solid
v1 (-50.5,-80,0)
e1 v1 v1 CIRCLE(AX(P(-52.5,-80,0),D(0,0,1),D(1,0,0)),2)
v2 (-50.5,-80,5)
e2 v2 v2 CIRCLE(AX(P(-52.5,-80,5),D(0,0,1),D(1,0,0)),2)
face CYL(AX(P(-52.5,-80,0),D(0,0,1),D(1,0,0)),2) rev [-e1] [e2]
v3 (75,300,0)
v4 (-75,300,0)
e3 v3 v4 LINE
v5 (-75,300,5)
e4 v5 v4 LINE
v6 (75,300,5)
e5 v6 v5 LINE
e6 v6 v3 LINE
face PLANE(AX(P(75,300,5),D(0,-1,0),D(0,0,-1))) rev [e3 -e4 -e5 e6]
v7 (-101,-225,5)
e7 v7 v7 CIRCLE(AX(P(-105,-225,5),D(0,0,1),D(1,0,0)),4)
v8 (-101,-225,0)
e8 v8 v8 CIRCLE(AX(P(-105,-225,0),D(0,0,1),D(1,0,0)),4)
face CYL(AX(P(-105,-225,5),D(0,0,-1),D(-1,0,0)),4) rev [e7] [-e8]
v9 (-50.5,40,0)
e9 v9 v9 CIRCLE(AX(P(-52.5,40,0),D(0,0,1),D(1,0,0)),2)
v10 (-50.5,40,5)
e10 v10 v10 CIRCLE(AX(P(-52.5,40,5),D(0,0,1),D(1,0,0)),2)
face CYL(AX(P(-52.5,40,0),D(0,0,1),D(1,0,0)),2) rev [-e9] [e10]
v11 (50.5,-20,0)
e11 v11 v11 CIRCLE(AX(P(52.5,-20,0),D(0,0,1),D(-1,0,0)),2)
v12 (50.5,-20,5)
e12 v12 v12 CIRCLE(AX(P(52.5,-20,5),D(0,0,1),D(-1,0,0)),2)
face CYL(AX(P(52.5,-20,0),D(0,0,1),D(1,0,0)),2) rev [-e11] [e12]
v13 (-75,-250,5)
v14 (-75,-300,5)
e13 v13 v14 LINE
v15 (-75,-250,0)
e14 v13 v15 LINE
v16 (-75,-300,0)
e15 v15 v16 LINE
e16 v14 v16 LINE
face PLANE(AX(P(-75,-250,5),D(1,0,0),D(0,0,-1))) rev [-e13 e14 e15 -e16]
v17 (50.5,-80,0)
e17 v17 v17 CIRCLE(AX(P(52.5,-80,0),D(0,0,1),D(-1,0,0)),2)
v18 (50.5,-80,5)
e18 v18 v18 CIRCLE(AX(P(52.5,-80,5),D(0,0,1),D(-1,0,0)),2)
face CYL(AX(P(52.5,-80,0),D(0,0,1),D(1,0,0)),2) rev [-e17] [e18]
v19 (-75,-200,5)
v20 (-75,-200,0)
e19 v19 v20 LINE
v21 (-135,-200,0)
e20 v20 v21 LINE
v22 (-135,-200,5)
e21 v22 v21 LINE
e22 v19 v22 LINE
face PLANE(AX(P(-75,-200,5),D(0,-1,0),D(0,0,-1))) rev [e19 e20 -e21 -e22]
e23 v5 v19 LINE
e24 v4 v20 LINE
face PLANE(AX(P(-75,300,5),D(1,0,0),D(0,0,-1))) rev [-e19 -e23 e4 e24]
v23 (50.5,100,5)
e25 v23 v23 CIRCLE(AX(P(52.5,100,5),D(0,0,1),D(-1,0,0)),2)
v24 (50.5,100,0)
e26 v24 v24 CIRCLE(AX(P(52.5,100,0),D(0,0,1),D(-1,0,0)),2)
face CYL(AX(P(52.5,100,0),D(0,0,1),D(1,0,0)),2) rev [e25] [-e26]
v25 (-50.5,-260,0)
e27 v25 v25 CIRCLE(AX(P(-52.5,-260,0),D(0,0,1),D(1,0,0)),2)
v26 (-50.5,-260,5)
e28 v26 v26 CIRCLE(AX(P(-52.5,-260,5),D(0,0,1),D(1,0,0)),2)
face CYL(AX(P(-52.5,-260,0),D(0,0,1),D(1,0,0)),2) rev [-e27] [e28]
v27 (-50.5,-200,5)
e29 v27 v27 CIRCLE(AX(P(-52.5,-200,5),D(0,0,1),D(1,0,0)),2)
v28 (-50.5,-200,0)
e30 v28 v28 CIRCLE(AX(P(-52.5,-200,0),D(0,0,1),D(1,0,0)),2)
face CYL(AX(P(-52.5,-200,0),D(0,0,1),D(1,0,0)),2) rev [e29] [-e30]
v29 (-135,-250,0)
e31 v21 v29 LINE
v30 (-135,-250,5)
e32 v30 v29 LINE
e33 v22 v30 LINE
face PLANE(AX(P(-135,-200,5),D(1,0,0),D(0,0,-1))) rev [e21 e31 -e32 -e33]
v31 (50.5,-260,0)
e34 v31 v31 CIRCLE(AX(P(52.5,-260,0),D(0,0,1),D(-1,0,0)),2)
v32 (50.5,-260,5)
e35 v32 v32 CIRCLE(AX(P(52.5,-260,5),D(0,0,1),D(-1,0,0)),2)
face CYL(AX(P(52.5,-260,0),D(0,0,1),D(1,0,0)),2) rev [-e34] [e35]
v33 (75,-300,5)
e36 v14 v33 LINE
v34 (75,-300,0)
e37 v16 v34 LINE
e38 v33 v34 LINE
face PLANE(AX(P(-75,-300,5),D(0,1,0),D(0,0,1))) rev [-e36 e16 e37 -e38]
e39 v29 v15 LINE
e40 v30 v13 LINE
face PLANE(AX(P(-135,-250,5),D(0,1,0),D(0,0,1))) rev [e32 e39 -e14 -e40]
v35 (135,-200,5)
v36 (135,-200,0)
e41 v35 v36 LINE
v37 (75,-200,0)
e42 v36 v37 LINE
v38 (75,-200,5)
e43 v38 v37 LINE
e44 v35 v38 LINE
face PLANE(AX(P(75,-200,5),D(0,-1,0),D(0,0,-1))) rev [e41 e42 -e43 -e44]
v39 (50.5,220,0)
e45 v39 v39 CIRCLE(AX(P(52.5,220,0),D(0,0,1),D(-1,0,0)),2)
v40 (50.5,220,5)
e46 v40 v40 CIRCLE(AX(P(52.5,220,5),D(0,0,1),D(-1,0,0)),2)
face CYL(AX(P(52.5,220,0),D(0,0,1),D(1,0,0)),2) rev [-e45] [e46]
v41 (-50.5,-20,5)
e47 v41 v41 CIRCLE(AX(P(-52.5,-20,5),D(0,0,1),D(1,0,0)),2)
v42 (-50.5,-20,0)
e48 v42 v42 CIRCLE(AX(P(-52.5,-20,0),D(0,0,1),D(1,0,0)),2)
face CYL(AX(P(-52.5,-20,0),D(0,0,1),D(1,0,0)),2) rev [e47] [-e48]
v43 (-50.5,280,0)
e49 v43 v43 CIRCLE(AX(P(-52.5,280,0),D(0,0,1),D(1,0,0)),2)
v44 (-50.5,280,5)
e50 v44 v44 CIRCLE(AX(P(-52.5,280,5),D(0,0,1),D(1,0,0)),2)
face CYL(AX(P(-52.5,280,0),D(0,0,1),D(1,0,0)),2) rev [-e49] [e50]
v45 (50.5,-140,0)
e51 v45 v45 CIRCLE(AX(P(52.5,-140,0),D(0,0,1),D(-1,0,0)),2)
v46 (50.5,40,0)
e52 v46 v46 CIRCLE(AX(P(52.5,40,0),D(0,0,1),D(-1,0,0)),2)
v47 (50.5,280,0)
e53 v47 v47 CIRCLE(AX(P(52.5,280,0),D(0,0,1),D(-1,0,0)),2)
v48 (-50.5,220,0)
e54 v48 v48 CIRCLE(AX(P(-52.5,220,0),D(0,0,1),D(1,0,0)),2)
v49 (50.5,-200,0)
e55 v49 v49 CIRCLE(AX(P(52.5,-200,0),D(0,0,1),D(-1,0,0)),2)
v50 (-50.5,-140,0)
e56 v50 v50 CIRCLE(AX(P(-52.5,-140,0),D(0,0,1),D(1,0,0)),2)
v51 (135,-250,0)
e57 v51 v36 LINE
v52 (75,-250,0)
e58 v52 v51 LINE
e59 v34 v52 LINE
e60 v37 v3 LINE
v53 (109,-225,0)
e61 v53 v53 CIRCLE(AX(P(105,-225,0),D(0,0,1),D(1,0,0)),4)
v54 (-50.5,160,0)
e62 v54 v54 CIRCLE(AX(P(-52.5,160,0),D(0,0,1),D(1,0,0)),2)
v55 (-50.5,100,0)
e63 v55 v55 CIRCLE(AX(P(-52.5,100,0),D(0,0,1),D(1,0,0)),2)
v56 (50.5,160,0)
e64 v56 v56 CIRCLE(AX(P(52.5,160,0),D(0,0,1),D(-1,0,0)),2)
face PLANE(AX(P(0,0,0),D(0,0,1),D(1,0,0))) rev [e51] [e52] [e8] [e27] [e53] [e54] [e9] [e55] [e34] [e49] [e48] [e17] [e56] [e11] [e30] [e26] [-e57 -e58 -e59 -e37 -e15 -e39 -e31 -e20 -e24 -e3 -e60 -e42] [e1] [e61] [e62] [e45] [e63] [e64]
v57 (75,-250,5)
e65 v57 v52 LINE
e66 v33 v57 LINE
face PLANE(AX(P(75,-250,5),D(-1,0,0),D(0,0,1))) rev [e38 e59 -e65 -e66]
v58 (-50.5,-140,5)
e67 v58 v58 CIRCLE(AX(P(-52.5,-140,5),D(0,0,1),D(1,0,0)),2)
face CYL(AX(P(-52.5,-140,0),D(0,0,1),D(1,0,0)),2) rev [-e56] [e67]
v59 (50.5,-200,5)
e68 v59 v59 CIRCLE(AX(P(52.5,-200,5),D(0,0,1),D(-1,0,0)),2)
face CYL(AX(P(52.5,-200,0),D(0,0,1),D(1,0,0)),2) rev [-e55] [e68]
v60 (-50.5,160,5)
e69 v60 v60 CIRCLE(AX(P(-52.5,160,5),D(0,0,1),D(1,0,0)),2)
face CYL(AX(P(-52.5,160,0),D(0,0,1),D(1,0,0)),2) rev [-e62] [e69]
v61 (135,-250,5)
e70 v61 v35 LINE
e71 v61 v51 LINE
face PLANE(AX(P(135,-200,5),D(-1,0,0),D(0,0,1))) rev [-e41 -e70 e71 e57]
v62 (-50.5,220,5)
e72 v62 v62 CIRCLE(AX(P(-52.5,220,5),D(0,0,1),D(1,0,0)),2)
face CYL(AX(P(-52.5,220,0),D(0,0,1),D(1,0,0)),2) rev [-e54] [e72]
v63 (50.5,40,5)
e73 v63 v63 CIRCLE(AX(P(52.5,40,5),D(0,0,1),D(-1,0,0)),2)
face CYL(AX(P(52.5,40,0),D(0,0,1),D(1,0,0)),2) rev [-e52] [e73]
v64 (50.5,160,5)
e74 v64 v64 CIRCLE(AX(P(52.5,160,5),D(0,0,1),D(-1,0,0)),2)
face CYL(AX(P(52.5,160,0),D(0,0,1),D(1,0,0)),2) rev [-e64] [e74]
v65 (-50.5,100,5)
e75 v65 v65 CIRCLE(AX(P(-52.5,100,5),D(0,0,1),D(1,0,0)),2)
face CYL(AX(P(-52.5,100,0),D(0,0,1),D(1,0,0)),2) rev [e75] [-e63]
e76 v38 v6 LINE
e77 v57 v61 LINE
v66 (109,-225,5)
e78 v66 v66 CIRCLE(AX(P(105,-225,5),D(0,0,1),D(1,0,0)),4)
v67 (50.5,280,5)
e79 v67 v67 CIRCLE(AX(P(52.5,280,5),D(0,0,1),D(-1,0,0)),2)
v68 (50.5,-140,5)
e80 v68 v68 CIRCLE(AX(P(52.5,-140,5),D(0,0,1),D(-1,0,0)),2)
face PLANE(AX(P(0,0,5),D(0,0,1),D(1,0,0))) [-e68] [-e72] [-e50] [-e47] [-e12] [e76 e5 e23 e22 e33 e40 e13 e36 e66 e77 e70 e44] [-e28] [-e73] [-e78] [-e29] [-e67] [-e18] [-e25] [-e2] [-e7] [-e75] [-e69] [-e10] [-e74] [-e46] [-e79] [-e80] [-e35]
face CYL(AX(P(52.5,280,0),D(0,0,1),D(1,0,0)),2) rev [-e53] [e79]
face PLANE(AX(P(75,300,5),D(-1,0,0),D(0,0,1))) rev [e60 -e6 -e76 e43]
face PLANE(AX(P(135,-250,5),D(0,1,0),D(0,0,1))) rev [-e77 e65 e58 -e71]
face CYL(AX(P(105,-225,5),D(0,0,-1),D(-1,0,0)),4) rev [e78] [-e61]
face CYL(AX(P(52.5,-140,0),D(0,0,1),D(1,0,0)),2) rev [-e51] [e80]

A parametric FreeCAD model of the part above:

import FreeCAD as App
import Part
import Sketcher
from FreeCAD import Vector
Q = App.Units.Quantity

doc = App.newDocument("Part")
body = doc.addObject("PartDesign::Body", "Body")

sketch1 = body.newObject("Sketcher::SketchObject", "Sketch")
sketch1.AttachmentSupport = (doc.getObject("XY_Plane"), [""])
sketch1.MapMode = "FlatFace"
sketch1.addGeometry([
    Part.LineSegment(Vector(75, -200, 0), Vector(75, 300, 0)),
    Part.LineSegment(Vector(75, 300, 0), Vector(-75, 300, 0)),
    Part.LineSegment(Vector(-75, 300, 0), Vector(-75, -200, 0)),
    Part.LineSegment(Vector(-75, -200, 0), Vector(-135, -200, 0)),
    Part.LineSegment(Vector(-135, -200, 0), Vector(-135, -250, 0)),
    Part.LineSegment(Vector(-135, -250, 0), Vector(-75, -250, 0)),
    Part.LineSegment(Vector(-75, -250, 0), Vector(-75, -300, 0)),
    Part.LineSegment(Vector(-75, -300, 0), Vector(75, -300, 0)),
    Part.LineSegment(Vector(75, -300, 0), Vector(75, -250, 0)),
    Part.LineSegment(Vector(75, -250, 0), Vector(135, -250, 0)),
    Part.LineSegment(Vector(135, -250, 0), Vector(135, -200, 0)),
    Part.LineSegment(Vector(135, -200, 0), Vector(75, -200, 0)),
    Part.Circle(Vector(105, -225, 0), Vector(0, 0, 1), 4),
    Part.Circle(Vector(-105, -225, 0), Vector(0, 0, 1), 4),
], False)
sketch1.addConstraint([
    Sketcher.Constraint("Coincident", 0, 2, 1, 1),
    Sketcher.Constraint("Coincident", 1, 2, 2, 1),
    Sketcher.Constraint("Coincident", 2, 2, 3, 1),
    Sketcher.Constraint("Coincident", 3, 2, 4, 1),
    Sketcher.Constraint("Coincident", 4, 2, 5, 1),
    Sketcher.Constraint("Coincident", 5, 2, 6, 1),
    Sketcher.Constraint("Coincident", 6, 2, 7, 1),
    Sketcher.Constraint("Coincident", 7, 2, 8, 1),
    Sketcher.Constraint("Coincident", 8, 2, 9, 1),
    Sketcher.Constraint("Coincident", 9, 2, 10, 1),
    Sketcher.Constraint("Coincident", 10, 2, 11, 1),
    Sketcher.Constraint("Coincident", 11, 2, 0, 1),
    Sketcher.Constraint("Vertical", 0),
    Sketcher.Constraint("Horizontal", 1),
    Sketcher.Constraint("Vertical", 2),
    Sketcher.Constraint("Horizontal", 3),
    Sketcher.Constraint("Vertical", 4),
    Sketcher.Constraint("Horizontal", 5),
    Sketcher.Constraint("Vertical", 6),
    Sketcher.Constraint("Horizontal", 7),
    Sketcher.Constraint("Vertical", 8),
    Sketcher.Constraint("Horizontal", 9),
    Sketcher.Constraint("Vertical", 10),
    Sketcher.Constraint("Horizontal", 11),
    Sketcher.Constraint("Equal", 12, 13),
    Sketcher.Constraint("Symmetric", 0, 2, 6, 2, -1, 1),
    Sketcher.Constraint("Symmetric", 12, 3, 13, 3, -2),
    Sketcher.Constraint("Symmetric", 5, 2, 8, 2, -2),
    Sketcher.Constraint("Symmetric", 3, 2, 10, 2, -2),
    Sketcher.Constraint("Vertical", 2, 2, 5, 2),
    Sketcher.Constraint("Equal", 4, 6),
    Sketcher.Constraint("Diameter", 12, Q("8 mm")),
    Sketcher.Constraint("DistanceX", 1, 2, 1, 1, Q("150 mm")),
    Sketcher.Constraint("DistanceX", 3, 2, 3, 1, Q("60 mm")),
    Sketcher.Constraint("DistanceY", 0, 1, 0, 2, Q("500 mm")),
    Sketcher.Constraint("DistanceY", 4, 2, 4, 1, Q("50 mm")),
    Sketcher.Constraint("DistanceX", -1, 1, 12, 3, Q("105 mm")),
    Sketcher.Constraint("DistanceY", 12, 3, -1, 1, Q("225 mm")),
])
pad1 = body.newObject("PartDesign::Pad", "Pad")
pad1.Profile = sketch1
pad1.Length = 5

sketch2 = body.newObject("Sketcher::SketchObject", "Sketch001")
sketch2.AttachmentSupport = (doc.getObject("XY_Plane"), [""])
sketch2.MapMode = "FlatFace"
sketch2.AttachmentOffset = App.Placement(Vector(0, 0, 5), App.Rotation())
sketch2.addGeometry([
    Part.Circle(Vector(-52.5, 280, 0), Vector(0, 0, 1), 2),
    Part.Circle(Vector(-52.5, 220, 0), Vector(0, 0, 1), 2),
    Part.Circle(Vector(-52.5, 160, 0), Vector(0, 0, 1), 2),
    Part.Circle(Vector(-52.5, 100, 0), Vector(0, 0, 1), 2),
    Part.Circle(Vector(-52.5, 40, 0), Vector(0, 0, 1), 2),
    Part.Circle(Vector(-52.5, -20, 0), Vector(0, 0, 1), 2),
    Part.Circle(Vector(-52.5, -80, 0), Vector(0, 0, 1), 2),
    Part.Circle(Vector(-52.5, -140, 0), Vector(0, 0, 1), 2),
    Part.Circle(Vector(-52.5, -200, 0), Vector(0, 0, 1), 2),
    Part.Circle(Vector(-52.5, -260, 0), Vector(0, 0, 1), 2),
    Part.Circle(Vector(52.5, -260, 0), Vector(0, 0, 1), 2),
    Part.Circle(Vector(52.5, -200, 0), Vector(0, 0, 1), 2),
    Part.Circle(Vector(52.5, -140, 0), Vector(0, 0, 1), 2),
    Part.Circle(Vector(52.5, -80, 0), Vector(0, 0, 1), 2),
    Part.Circle(Vector(52.5, -20, 0), Vector(0, 0, 1), 2),
    Part.Circle(Vector(52.5, 40, 0), Vector(0, 0, 1), 2),
    Part.Circle(Vector(52.5, 100, 0), Vector(0, 0, 1), 2),
    Part.Circle(Vector(52.5, 160, 0), Vector(0, 0, 1), 2),
    Part.Circle(Vector(52.5, 220, 0), Vector(0, 0, 1), 2),
    Part.Circle(Vector(52.5, 280, 0), Vector(0, 0, 1), 2),
], False)
sketch2.addConstraint([
    Sketcher.Constraint("Equal", 0, 1),
    Sketcher.Constraint("Equal", 1, 2),
    Sketcher.Constraint("Equal", 2, 3),
    Sketcher.Constraint("Equal", 3, 4),
    Sketcher.Constraint("Equal", 4, 5),
    Sketcher.Constraint("Equal", 5, 6),
    Sketcher.Constraint("Equal", 6, 7),
    Sketcher.Constraint("Equal", 7, 8),
    Sketcher.Constraint("Equal", 8, 9),
    Sketcher.Constraint("Equal", 9, 10),
    Sketcher.Constraint("Equal", 10, 11),
    Sketcher.Constraint("Equal", 11, 12),
    Sketcher.Constraint("Equal", 12, 13),
    Sketcher.Constraint("Equal", 13, 14),
    Sketcher.Constraint("Equal", 14, 15),
    Sketcher.Constraint("Equal", 15, 16),
    Sketcher.Constraint("Equal", 16, 17),
    Sketcher.Constraint("Equal", 17, 18),
    Sketcher.Constraint("Equal", 18, 19),
    Sketcher.Constraint("Symmetric", 9, 3, 10, 3, -2),
    Sketcher.Constraint("Symmetric", 8, 3, 11, 3, -2),
    Sketcher.Constraint("Symmetric", 7, 3, 12, 3, -2),
    Sketcher.Constraint("Symmetric", 6, 3, 13, 3, -2),
    Sketcher.Constraint("Symmetric", 5, 3, 14, 3, -2),
    Sketcher.Constraint("Symmetric", 4, 3, 15, 3, -2),
    Sketcher.Constraint("Symmetric", 3, 3, 16, 3, -2),
    Sketcher.Constraint("Symmetric", 2, 3, 17, 3, -2),
    Sketcher.Constraint("Symmetric", 1, 3, 18, 3, -2),
    Sketcher.Constraint("Symmetric", 0, 3, 19, 3, -2),
    Sketcher.Constraint("Vertical", 0, 3, 1, 3),
    Sketcher.Constraint("Vertical", 1, 3, 2, 3),
    Sketcher.Constraint("Vertical", 2, 3, 3, 3),
    Sketcher.Constraint("Vertical", 3, 3, 4, 3),
    Sketcher.Constraint("Vertical", 4, 3, 5, 3),
    Sketcher.Constraint("Vertical", 5, 3, 6, 3),
    Sketcher.Constraint("Vertical", 6, 3, 7, 3),
    Sketcher.Constraint("Vertical", 7, 3, 8, 3),
    Sketcher.Constraint("Vertical", 8, 3, 9, 3),
    Sketcher.Constraint("Diameter", 0, Q("4 mm")),
    Sketcher.Constraint("DistanceY", -1, 1, 0, 3, Q("280 mm")),
    Sketcher.Constraint("DistanceY", -1, 1, 1, 3, Q("220 mm")),
    Sketcher.Constraint("DistanceY", -1, 1, 2, 3, Q("160 mm")),
    Sketcher.Constraint("DistanceY", -1, 1, 3, 3, Q("100 mm")),
    Sketcher.Constraint("DistanceY", -1, 1, 4, 3, Q("40 mm")),
    Sketcher.Constraint("DistanceY", 5, 3, -1, 1, Q("20 mm")),
    Sketcher.Constraint("DistanceY", 6, 3, -1, 1, Q("80 mm")),
    Sketcher.Constraint("DistanceY", 7, 3, -1, 1, Q("140 mm")),
    Sketcher.Constraint("DistanceY", 8, 3, -1, 1, Q("200 mm")),
    Sketcher.Constraint("DistanceY", 9, 3, -1, 1, Q("260 mm")),
    Sketcher.Constraint("DistanceX", 9, 3, 10, 3, Q("105 mm")),
])
pocket1 = body.newObject("PartDesign::Pocket", "Pocket")
pocket1.Profile = sketch2
pocket1.Length = 5

doc.recompute()
